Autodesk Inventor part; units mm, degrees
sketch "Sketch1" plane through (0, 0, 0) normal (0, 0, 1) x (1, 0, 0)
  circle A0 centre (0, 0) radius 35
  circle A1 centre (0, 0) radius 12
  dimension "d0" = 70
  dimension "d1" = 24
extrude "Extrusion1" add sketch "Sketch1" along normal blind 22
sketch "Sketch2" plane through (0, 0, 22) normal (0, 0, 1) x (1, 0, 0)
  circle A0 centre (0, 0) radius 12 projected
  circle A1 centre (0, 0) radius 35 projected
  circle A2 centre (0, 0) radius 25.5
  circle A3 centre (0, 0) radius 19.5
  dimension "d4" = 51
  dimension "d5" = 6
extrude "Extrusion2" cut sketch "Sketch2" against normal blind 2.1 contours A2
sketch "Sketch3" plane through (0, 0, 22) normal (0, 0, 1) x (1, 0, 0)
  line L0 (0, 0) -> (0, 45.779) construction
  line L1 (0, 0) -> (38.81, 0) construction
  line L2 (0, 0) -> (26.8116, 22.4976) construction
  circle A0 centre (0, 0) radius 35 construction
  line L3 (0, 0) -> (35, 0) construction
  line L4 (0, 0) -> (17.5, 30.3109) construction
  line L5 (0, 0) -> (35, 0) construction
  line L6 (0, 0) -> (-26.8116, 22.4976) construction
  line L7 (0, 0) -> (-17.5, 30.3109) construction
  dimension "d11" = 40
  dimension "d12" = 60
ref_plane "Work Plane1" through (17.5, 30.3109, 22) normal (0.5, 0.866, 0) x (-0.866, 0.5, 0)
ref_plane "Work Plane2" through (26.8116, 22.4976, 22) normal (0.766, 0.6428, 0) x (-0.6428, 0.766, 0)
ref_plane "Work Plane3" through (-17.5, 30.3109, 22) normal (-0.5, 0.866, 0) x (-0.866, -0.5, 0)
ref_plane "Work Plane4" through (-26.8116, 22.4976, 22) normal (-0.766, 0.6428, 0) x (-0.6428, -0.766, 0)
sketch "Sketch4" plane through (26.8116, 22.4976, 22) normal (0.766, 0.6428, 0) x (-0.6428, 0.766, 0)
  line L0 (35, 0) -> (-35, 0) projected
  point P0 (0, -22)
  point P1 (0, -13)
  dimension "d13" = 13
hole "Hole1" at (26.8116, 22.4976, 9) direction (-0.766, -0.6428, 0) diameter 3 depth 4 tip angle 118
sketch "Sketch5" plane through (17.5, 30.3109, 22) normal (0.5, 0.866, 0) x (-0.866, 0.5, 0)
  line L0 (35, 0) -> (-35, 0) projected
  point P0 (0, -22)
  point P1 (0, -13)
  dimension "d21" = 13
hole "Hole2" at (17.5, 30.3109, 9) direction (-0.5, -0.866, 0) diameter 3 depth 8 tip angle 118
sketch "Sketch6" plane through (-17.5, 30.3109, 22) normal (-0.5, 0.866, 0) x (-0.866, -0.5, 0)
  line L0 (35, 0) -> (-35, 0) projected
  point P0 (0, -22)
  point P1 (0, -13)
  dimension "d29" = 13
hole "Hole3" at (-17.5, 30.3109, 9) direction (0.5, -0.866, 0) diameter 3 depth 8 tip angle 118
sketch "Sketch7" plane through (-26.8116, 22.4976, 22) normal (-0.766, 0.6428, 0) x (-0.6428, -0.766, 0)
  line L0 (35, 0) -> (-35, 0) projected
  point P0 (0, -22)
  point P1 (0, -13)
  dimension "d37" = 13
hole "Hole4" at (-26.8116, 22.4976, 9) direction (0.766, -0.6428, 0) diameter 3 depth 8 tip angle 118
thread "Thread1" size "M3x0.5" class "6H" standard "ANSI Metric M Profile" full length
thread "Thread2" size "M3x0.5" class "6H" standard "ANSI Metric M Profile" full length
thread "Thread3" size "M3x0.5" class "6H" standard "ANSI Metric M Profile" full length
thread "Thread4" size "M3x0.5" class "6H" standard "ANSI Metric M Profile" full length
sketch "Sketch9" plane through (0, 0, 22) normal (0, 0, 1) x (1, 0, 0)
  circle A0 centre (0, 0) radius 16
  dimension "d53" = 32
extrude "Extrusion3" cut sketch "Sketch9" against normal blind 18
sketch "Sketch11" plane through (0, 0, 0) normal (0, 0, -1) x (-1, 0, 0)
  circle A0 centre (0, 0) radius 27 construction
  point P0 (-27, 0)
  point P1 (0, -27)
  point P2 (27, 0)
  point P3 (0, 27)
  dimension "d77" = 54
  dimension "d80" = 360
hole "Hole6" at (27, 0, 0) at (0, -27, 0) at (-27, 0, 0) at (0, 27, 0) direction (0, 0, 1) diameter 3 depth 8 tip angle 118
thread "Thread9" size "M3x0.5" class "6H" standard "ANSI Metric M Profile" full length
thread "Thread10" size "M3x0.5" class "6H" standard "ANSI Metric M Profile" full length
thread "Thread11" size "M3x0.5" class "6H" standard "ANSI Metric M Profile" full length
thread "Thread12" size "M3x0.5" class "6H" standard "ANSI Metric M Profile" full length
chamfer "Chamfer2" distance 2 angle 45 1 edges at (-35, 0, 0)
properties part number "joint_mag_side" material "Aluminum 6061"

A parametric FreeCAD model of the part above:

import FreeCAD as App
import Part
import Sketcher
from FreeCAD import Vector
Q = App.Units.Quantity


def edges_at(feature, points):
    """Names of the edges that pass closest to the given points."""
    edges = feature.Shape.Edges
    near = lambda p: min(range(len(edges)), key=lambda i: edges[i].distToShape(Part.Vertex(*p))[0])
    return sorted({f"Edge{near(p) + 1}" for p in points})

doc = App.newDocument("Part")
body = doc.addObject("PartDesign::Body", "Body")

sketch1 = doc.addObject("Sketcher::SketchObject", "Sketch")
body.addObject(sketch1)
sketch1.AttachmentSupport = (doc.XY_Plane, [""])
sketch1.MapMode = "FlatFace"
sketch1.addGeometry([
    Part.Circle(Vector(0, 0, 0), Vector(0, 0, 1), 35),
    Part.Circle(Vector(0, 0, 0), Vector(0, 0, 1), 12),
], False)
sketch1.addConstraint([
    Sketcher.Constraint("Coincident", 0, 3, -1, 1),
    Sketcher.Constraint("Coincident", 1, 3, -1, 1),
    Sketcher.Constraint("Diameter", 0, Q("70 mm")),
    Sketcher.Constraint("Diameter", 1, Q("24 mm")),
])
pad1 = doc.addObject("PartDesign::Pad", "Pad")
body.addObject(pad1)
pad1.Profile = sketch1
pad1.Length = 22

sketch2 = doc.addObject("Sketcher::SketchObject", "Sketch001")
body.addObject(sketch2)
sketch2.AttachmentSupport = (doc.XY_Plane, [""])
sketch2.MapMode = "FlatFace"
sketch2.AttachmentOffset = App.Placement(Vector(0, 0, 22), App.Rotation())
sketch2.addGeometry([
    Part.Circle(Vector(0, 0, 0), Vector(0, 0, 1), 26),
    Part.Circle(Vector(0, 0, 0), Vector(0, 0, 1), 20),
], False)
sketch2.addConstraint([
    Sketcher.Constraint("Coincident", 0, 3, -1, 1),
    Sketcher.Constraint("Coincident", 1, 3, -1, 1),
    Sketcher.Constraint("Diameter", 0, Q("51 mm")),
    Sketcher.Constraint("Diameter", 1, Q("39 mm")),
])
pocket1 = doc.addObject("PartDesign::Pocket", "Pocket")
body.addObject(pocket1)
pocket1.Profile = sketch2
pocket1.Length = 2.1

sketch3 = doc.addObject("Sketcher::SketchObject", "Sketch002")
body.addObject(sketch3)
sketch3.Placement = App.Placement(Vector(26.811598, 22.497602, 0), App.Rotation(Vector(-0.64278761, 0.766044443, 0), Vector(0, 0, 1), Vector(0.766044443, 0.64278761, 0), "ZXY"))
sketch3.addGeometry(Part.Circle(Vector(0, 9, 0), Vector(0, 0, 1), 1.5), False)
sketch3.addConstraint([
    Sketcher.Constraint("PointOnObject", 0, 3, -2),
    Sketcher.Constraint("Diameter", 0, Q("3 mm")),
    Sketcher.Constraint("DistanceY", -1, 1, 0, 3, Q("9 mm")),
])
doc.recompute()
hole = doc.addObject("PartDesign::Hole", "Hole")
body.addObject(hole)
hole.Profile = sketch3
hole.ThreadType = "None"
hole.Diameter = 3
hole.DepthType = "Dimension"
hole.Depth = 4
hole.DrillPoint = "Angled"
hole.DrillPointAngle = 118

sketch4 = doc.addObject("Sketcher::SketchObject", "Sketch003")
body.addObject(sketch4)
sketch4.Placement = App.Placement(Vector(17.500005, 30.310897, 0), App.Rotation(Vector(-0.866025404, 0.5, 0), Vector(0, 0, 1), Vector(0.5, 0.866025404, 0), "ZXY"))
sketch4.addGeometry(Part.Circle(Vector(0, 9, 0), Vector(0, 0, 1), 1.5), False)
sketch4.addConstraint([
    Sketcher.Constraint("PointOnObject", 0, 3, -2),
    Sketcher.Constraint("Diameter", 0, Q("3 mm")),
    Sketcher.Constraint("DistanceY", -1, 1, 0, 3, Q("9 mm")),
])
doc.recompute()
hole2 = doc.addObject("PartDesign::Hole", "Hole001")
body.addObject(hole2)
hole2.Profile = sketch4
hole2.ThreadType = "None"
hole2.Diameter = 3
hole2.DepthType = "Dimension"
hole2.Depth = 8
hole2.DrillPoint = "Angled"
hole2.DrillPointAngle = 118

sketch5 = doc.addObject("Sketcher::SketchObject", "Sketch004")
body.addObject(sketch5)
sketch5.Placement = App.Placement(Vector(-17.500005, 30.310897, 0), App.Rotation(Vector(-0.866025404, -0.5, 0), Vector(0, 0, 1), Vector(-0.5, 0.866025404, 0), "ZXY"))
sketch5.addGeometry(Part.Circle(Vector(0, 9, 0), Vector(0, 0, 1), 1.5), False)
sketch5.addConstraint([
    Sketcher.Constraint("PointOnObject", 0, 3, -2),
    Sketcher.Constraint("Diameter", 0, Q("3 mm")),
    Sketcher.Constraint("DistanceY", -1, 1, 0, 3, Q("9 mm")),
])
doc.recompute()
hole3 = doc.addObject("PartDesign::Hole", "Hole002")
body.addObject(hole3)
hole3.Profile = sketch5
hole3.ThreadType = "None"
hole3.Diameter = 3
hole3.DepthType = "Dimension"
hole3.Depth = 8
hole3.DrillPoint = "Angled"
hole3.DrillPointAngle = 118

sketch6 = doc.addObject("Sketcher::SketchObject", "Sketch005")
body.addObject(sketch6)
sketch6.Placement = App.Placement(Vector(-26.811598, 22.497602, 0), App.Rotation(Vector(-0.64278761, -0.766044443, 0), Vector(0, 0, 1), Vector(-0.766044443, 0.64278761, 0), "ZXY"))
sketch6.addGeometry(Part.Circle(Vector(0, 9, 0), Vector(0, 0, 1), 1.5), False)
sketch6.addConstraint([
    Sketcher.Constraint("PointOnObject", 0, 3, -2),
    Sketcher.Constraint("Diameter", 0, Q("3 mm")),
    Sketcher.Constraint("DistanceY", -1, 1, 0, 3, Q("9 mm")),
])
doc.recompute()
hole4 = doc.addObject("PartDesign::Hole", "Hole003")
body.addObject(hole4)
hole4.Profile = sketch6
hole4.ThreadType = "None"
hole4.Diameter = 3
hole4.DepthType = "Dimension"
hole4.Depth = 8
hole4.DrillPoint = "Angled"
hole4.DrillPointAngle = 118

sketch7 = doc.addObject("Sketcher::SketchObject", "Sketch006")
body.addObject(sketch7)
sketch7.AttachmentSupport = (doc.XY_Plane, [""])
sketch7.MapMode = "FlatFace"
sketch7.AttachmentOffset = App.Placement(Vector(0, 0, 22), App.Rotation())
sketch7.addGeometry(Part.Circle(Vector(0, 0, 0), Vector(0, 0, 1), 16), False)
sketch7.addConstraint([
    Sketcher.Constraint("Coincident", 0, 3, -1, 1),
    Sketcher.Constraint("Diameter", 0, Q("32 mm")),
])
pocket2 = doc.addObject("PartDesign::Pocket", "Pocket001")
body.addObject(pocket2)
pocket2.Profile = sketch7
pocket2.Length = 18

sketch8 = doc.addObject("Sketcher::SketchObject", "Sketch007")
body.addObject(sketch8)
sketch8.AttachmentSupport = (doc.XY_Plane, [""])
sketch8.MapMode = "FlatFace"
sketch8.addGeometry([
    Part.Circle(Vector(27, 0, 0), Vector(0, 0, 1), 1.5),
    Part.Circle(Vector(0, -27, 0), Vector(0, 0, 1), 1.5),
    Part.Circle(Vector(-27, 0, 0), Vector(0, 0, 1), 1.5),
    Part.Circle(Vector(0, 27, 0), Vector(0, 0, 1), 1.5),
], False)
sketch8.addConstraint([
    Sketcher.Constraint("Equal", 0, 1),
    Sketcher.Constraint("Equal", 1, 2),
    Sketcher.Constraint("Equal", 2, 3),
    Sketcher.Constraint("Symmetric", 0, 3, 2, 3, -1, 1),
    Sketcher.Constraint("Symmetric", 1, 3, 3, 3, -1, 1),
    Sketcher.Constraint("PointOnObject", 0, 3, -1),
    Sketcher.Constraint("PointOnObject", 1, 3, -2),
    Sketcher.Constraint("Diameter", 0, Q("3 mm")),
    Sketcher.Constraint("DistanceX", -1, 1, 0, 3, Q("27 mm")),
    Sketcher.Constraint("DistanceY", 1, 3, -1, 1, Q("27 mm")),
])
doc.recompute()
hole5 = doc.addObject("PartDesign::Hole", "Hole004")
body.addObject(hole5)
hole5.Profile = sketch8
hole5.ThreadType = "None"
hole5.Diameter = 3
hole5.DepthType = "Dimension"
hole5.Depth = 8
hole5.DrillPoint = "Angled"
hole5.DrillPointAngle = 118
hole5.Reversed = True
doc.recompute()

chamfer = doc.addObject("PartDesign::Chamfer", "Chamfer")
body.addObject(chamfer)
chamfer.Base = (hole5, edges_at(hole5, [(-35, 0, 0)]))
chamfer.Size = 2

doc.recompute()
